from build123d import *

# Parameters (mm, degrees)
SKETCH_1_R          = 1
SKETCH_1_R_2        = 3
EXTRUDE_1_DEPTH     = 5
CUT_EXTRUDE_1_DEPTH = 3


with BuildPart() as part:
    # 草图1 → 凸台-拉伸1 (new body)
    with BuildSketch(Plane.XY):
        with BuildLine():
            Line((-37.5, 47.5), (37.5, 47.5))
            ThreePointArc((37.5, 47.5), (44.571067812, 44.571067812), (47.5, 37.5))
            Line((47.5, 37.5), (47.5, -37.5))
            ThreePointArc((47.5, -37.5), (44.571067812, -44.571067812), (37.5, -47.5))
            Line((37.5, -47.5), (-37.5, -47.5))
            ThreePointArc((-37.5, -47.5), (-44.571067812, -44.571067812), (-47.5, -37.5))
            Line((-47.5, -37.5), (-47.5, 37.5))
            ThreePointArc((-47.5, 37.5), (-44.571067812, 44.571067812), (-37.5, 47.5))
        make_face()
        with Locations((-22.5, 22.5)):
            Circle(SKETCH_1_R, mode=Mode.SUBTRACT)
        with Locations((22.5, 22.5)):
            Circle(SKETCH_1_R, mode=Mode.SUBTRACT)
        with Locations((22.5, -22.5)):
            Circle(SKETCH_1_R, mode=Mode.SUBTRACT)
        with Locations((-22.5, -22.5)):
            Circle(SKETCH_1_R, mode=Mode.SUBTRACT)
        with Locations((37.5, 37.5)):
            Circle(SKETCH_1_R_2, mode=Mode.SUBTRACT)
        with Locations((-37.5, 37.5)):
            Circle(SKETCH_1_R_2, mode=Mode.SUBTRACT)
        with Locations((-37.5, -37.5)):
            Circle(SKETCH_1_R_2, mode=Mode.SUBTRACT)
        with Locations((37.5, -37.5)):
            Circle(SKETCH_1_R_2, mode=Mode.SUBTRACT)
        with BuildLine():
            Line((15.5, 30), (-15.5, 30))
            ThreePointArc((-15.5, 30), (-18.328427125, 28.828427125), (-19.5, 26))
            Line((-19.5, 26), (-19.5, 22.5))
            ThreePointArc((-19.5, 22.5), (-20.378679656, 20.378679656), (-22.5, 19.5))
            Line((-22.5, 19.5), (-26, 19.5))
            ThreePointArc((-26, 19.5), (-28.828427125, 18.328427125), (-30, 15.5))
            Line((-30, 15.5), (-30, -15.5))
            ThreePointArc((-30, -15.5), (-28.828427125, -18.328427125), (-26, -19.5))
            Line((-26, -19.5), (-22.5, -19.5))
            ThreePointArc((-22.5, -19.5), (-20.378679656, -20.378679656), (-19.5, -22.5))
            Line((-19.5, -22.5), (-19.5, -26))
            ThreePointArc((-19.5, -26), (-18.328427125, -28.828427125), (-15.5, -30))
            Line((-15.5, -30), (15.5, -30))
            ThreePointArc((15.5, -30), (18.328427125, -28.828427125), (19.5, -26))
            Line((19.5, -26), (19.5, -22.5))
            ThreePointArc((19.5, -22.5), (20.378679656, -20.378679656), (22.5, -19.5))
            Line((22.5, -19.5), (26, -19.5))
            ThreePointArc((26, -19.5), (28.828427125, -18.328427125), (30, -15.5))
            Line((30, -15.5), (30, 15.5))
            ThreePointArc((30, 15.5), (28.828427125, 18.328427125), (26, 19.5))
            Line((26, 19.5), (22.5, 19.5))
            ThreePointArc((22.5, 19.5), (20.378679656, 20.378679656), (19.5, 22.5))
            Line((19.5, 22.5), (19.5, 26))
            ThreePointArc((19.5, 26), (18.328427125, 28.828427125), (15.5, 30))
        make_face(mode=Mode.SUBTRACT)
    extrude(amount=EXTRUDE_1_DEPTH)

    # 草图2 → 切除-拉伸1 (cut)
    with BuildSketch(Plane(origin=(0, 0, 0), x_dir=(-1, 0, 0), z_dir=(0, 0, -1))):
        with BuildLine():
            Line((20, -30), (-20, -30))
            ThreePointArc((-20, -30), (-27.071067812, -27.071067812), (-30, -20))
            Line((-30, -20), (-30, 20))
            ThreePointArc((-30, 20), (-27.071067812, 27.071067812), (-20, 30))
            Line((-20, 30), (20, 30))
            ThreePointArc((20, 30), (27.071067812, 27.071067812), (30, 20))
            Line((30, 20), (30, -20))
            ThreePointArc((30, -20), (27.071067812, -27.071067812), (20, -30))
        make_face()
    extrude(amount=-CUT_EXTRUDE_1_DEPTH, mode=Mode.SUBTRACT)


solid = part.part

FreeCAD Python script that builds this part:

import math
import FreeCAD as App
import Part
import Sketcher

doc = App.newDocument("Part")
body = doc.addObject("PartDesign::Body", "Body")

sketch1 = body.newObject("Sketcher::SketchObject", "Sketch")
sketch1.AttachmentSupport = (doc.getObject("XY_Plane"), [""])
sketch1.MapMode = "FlatFace"
sketch1.addGeometry(Part.LineSegment(App.Vector(37.5, 47.5, 0), App.Vector(-37.5, 47.5, 0)), False)
sketch1.addGeometry(Part.ArcOfCircle(Part.Circle(App.Vector(-37.5, 37.5, 0), App.Vector(0, 0, 1), 10), math.radians(90), math.radians(180)), False)
sketch1.addGeometry(Part.LineSegment(App.Vector(-47.5, 37.5, 0), App.Vector(-47.5, -37.5, 0)), False)
sketch1.addGeometry(Part.ArcOfCircle(Part.Circle(App.Vector(-37.5, -37.5, 0), App.Vector(0, 0, 1), 10), math.radians(180), math.radians(270)), False)
sketch1.addGeometry(Part.LineSegment(App.Vector(-37.5, -47.5, 0), App.Vector(37.5, -47.5, 0)), False)
sketch1.addGeometry(Part.ArcOfCircle(Part.Circle(App.Vector(37.5, -37.5, 0), App.Vector(0, 0, 1), 10), math.radians(-90), math.radians(0)), False)
sketch1.addGeometry(Part.LineSegment(App.Vector(47.5, -37.5, 0), App.Vector(47.5, 37.5, 0)), False)
sketch1.addGeometry(Part.ArcOfCircle(Part.Circle(App.Vector(37.5, 37.5, 0), App.Vector(0, 0, 1), 10), math.radians(0), math.radians(90)), False)
sketch1.addGeometry(Part.Circle(App.Vector(37.5, -37.5, 0), App.Vector(0, 0, 1), 3), False)
sketch1.addGeometry(Part.Circle(App.Vector(22.5, -22.5, 0), App.Vector(0, 0, 1), 1), False)
sketch1.addGeometry(Part.Circle(App.Vector(-37.5, -37.5, 0), App.Vector(0, 0, 1), 3), False)
sketch1.addGeometry(Part.Circle(App.Vector(-22.5, -22.5, 0), App.Vector(0, 0, 1), 1), False)
sketch1.addGeometry(Part.Circle(App.Vector(22.5, 22.5, 0), App.Vector(0, 0, 1), 1), False)
sketch1.addGeometry(Part.Circle(App.Vector(37.5, 37.5, 0), App.Vector(0, 0, 1), 3), False)
sketch1.addGeometry(Part.ArcOfCircle(Part.Circle(App.Vector(15.5, 26, 0), App.Vector(0, 0, 1), 4), math.radians(0), math.radians(90)), False)
sketch1.addGeometry(Part.LineSegment(App.Vector(19.5, 26, 0), App.Vector(19.5, 22.5, 0)), False)
sketch1.addGeometry(Part.ArcOfCircle(Part.Circle(App.Vector(22.5, 22.5, 0), App.Vector(0, 0, 1), 3), math.radians(180), math.radians(270)), False)
sketch1.addGeometry(Part.LineSegment(App.Vector(22.5, 19.5, 0), App.Vector(26, 19.5, 0)), False)
sketch1.addGeometry(Part.ArcOfCircle(Part.Circle(App.Vector(26, 15.5, 0), App.Vector(0, 0, 1), 4), math.radians(0), math.radians(90)), False)
sketch1.addGeometry(Part.LineSegment(App.Vector(30, 15.5, 0), App.Vector(30, -15.5, 0)), False)
sketch1.addGeometry(Part.ArcOfCircle(Part.Circle(App.Vector(26, -15.5, 0), App.Vector(0, 0, 1), 4), math.radians(-90), math.radians(0)), False)
sketch1.addGeometry(Part.LineSegment(App.Vector(26, -19.5, 0), App.Vector(22.5, -19.5, 0)), False)
sketch1.addGeometry(Part.ArcOfCircle(Part.Circle(App.Vector(22.5, -22.5, 0), App.Vector(0, 0, 1), 3), math.radians(90), math.radians(180)), False)
sketch1.addGeometry(Part.LineSegment(App.Vector(19.5, -22.5, 0), App.Vector(19.5, -26, 0)), False)
sketch1.addGeometry(Part.ArcOfCircle(Part.Circle(App.Vector(15.5, -26, 0), App.Vector(0, 0, 1), 4), math.radians(-90), math.radians(0)), False)
sketch1.addGeometry(Part.LineSegment(App.Vector(15.5, -30, 0), App.Vector(-15.5, -30, 0)), False)
sketch1.addGeometry(Part.ArcOfCircle(Part.Circle(App.Vector(-15.5, -26, 0), App.Vector(0, 0, 1), 4), math.radians(180), math.radians(270)), False)
sketch1.addGeometry(Part.LineSegment(App.Vector(-19.5, -26, 0), App.Vector(-19.5, -22.5, 0)), False)
sketch1.addGeometry(Part.ArcOfCircle(Part.Circle(App.Vector(-22.5, -22.5, 0), App.Vector(0, 0, 1), 3), math.radians(0), math.radians(90)), False)
sketch1.addGeometry(Part.LineSegment(App.Vector(-22.5, -19.5, 0), App.Vector(-26, -19.5, 0)), False)
sketch1.addGeometry(Part.ArcOfCircle(Part.Circle(App.Vector(-26, -15.5, 0), App.Vector(0, 0, 1), 4), math.radians(180), math.radians(270)), False)
sketch1.addGeometry(Part.LineSegment(App.Vector(-30, -15.5, 0), App.Vector(-30, 15.5, 0)), False)
sketch1.addGeometry(Part.ArcOfCircle(Part.Circle(App.Vector(-26, 15.5, 0), App.Vector(0, 0, 1), 4), math.radians(90), math.radians(180)), False)
sketch1.addGeometry(Part.LineSegment(App.Vector(-26, 19.5, 0), App.Vector(-22.5, 19.5, 0)), False)
sketch1.addGeometry(Part.ArcOfCircle(Part.Circle(App.Vector(-22.5, 22.5, 0), App.Vector(0, 0, 1), 3), math.radians(-90), math.radians(0)), False)
sketch1.addGeometry(Part.LineSegment(App.Vector(-19.5, 22.5, 0), App.Vector(-19.5, 26, 0)), False)
sketch1.addGeometry(Part.ArcOfCircle(Part.Circle(App.Vector(-15.5, 26, 0), App.Vector(0, 0, 1), 4), math.radians(90), math.radians(180)), False)
sketch1.addGeometry(Part.LineSegment(App.Vector(-15.5, 30, 0), App.Vector(15.5, 30, 0)), False)
sketch1.addGeometry(Part.Circle(App.Vector(-22.5, 22.5, 0), App.Vector(0, 0, 1), 1), False)
sketch1.addGeometry(Part.Circle(App.Vector(-37.5, 37.5, 0), App.Vector(0, 0, 1), 3), False)
sketch1.addConstraint(Sketcher.Constraint("Tangent", 0, 2, 1, 1))
sketch1.addConstraint(Sketcher.Constraint("Tangent", 1, 2, 2, 1))
sketch1.addConstraint(Sketcher.Constraint("Tangent", 2, 2, 3, 1))
sketch1.addConstraint(Sketcher.Constraint("Tangent", 3, 2, 4, 1))
sketch1.addConstraint(Sketcher.Constraint("Tangent", 4, 2, 5, 1))
sketch1.addConstraint(Sketcher.Constraint("Tangent", 5, 2, 6, 1))
sketch1.addConstraint(Sketcher.Constraint("Tangent", 6, 2, 7, 1))
sketch1.addConstraint(Sketcher.Constraint("Tangent", 7, 2, 0, 1))
sketch1.addConstraint(Sketcher.Constraint("Tangent", 14, 1, 15, 1))
sketch1.addConstraint(Sketcher.Constraint("Tangent", 15, 2, 16, 1))
sketch1.addConstraint(Sketcher.Constraint("Tangent", 16, 2, 17, 1))
sketch1.addConstraint(Sketcher.Constraint("Tangent", 17, 2, 18, 2))
sketch1.addConstraint(Sketcher.Constraint("Tangent", 18, 1, 19, 1))
sketch1.addConstraint(Sketcher.Constraint("Tangent", 19, 2, 20, 2))
sketch1.addConstraint(Sketcher.Constraint("Tangent", 20, 1, 21, 1))
sketch1.addConstraint(Sketcher.Constraint("Tangent", 21, 2, 22, 1))
sketch1.addConstraint(Sketcher.Constraint("Tangent", 22, 2, 23, 1))
sketch1.addConstraint(Sketcher.Constraint("Tangent", 23, 2, 24, 2))
sketch1.addConstraint(Sketcher.Constraint("Tangent", 24, 1, 25, 1))
sketch1.addConstraint(Sketcher.Constraint("Tangent", 25, 2, 26, 2))
sketch1.addConstraint(Sketcher.Constraint("Tangent", 26, 1, 27, 1))
sketch1.addConstraint(Sketcher.Constraint("Tangent", 27, 2, 28, 1))
sketch1.addConstraint(Sketcher.Constraint("Tangent", 28, 2, 29, 1))
sketch1.addConstraint(Sketcher.Constraint("Tangent", 29, 2, 30, 2))
sketch1.addConstraint(Sketcher.Constraint("Tangent", 30, 1, 31, 1))
sketch1.addConstraint(Sketcher.Constraint("Tangent", 31, 2, 32, 2))
sketch1.addConstraint(Sketcher.Constraint("Tangent", 32, 1, 33, 1))
sketch1.addConstraint(Sketcher.Constraint("Tangent", 33, 2, 34, 1))
sketch1.addConstraint(Sketcher.Constraint("Tangent", 34, 2, 35, 1))
sketch1.addConstraint(Sketcher.Constraint("Tangent", 35, 2, 36, 2))
sketch1.addConstraint(Sketcher.Constraint("Tangent", 36, 1, 37, 1))
sketch1.addConstraint(Sketcher.Constraint("Tangent", 37, 2, 14, 2))
sketch1.addConstraint(Sketcher.Constraint("Horizontal", 0))
sketch1.addConstraint(Sketcher.Constraint("Vertical", 2))
sketch1.addConstraint(Sketcher.Constraint("Horizontal", 4))
sketch1.addConstraint(Sketcher.Constraint("Vertical", 6))
sketch1.addConstraint(Sketcher.Constraint("Vertical", 15))
sketch1.addConstraint(Sketcher.Constraint("Horizontal", 17))
sketch1.addConstraint(Sketcher.Constraint("Vertical", 19))
sketch1.addConstraint(Sketcher.Constraint("Horizontal", 21))
sketch1.addConstraint(Sketcher.Constraint("Vertical", 23))
sketch1.addConstraint(Sketcher.Constraint("Horizontal", 25))
sketch1.addConstraint(Sketcher.Constraint("Vertical", 27))
sketch1.addConstraint(Sketcher.Constraint("Horizontal", 29))
sketch1.addConstraint(Sketcher.Constraint("Vertical", 31))
sketch1.addConstraint(Sketcher.Constraint("Horizontal", 33))
sketch1.addConstraint(Sketcher.Constraint("Vertical", 35))
sketch1.addConstraint(Sketcher.Constraint("Horizontal", 37))
sketch1.addConstraint(Sketcher.Constraint("Coincident", 8, 3, 5, 3))
sketch1.addConstraint(Sketcher.Constraint("Coincident", 10, 3, 3, 3))
sketch1.addConstraint(Sketcher.Constraint("Coincident", 13, 3, 7, 3))
sketch1.addConstraint(Sketcher.Constraint("Coincident", 16, 3, 12, 3))
sketch1.addConstraint(Sketcher.Constraint("Coincident", 22, 3, 9, 3))
sketch1.addConstraint(Sketcher.Constraint("Coincident", 28, 3, 11, 3))
sketch1.addConstraint(Sketcher.Constraint("Coincident", 38, 3, 34, 3))
sketch1.addConstraint(Sketcher.Constraint("Coincident", 39, 3, 1, 3))
sketch1.addConstraint(Sketcher.Constraint("Equal", 1, 3))
sketch1.addConstraint(Sketcher.Constraint("Equal", 3, 5))
sketch1.addConstraint(Sketcher.Constraint("Equal", 5, 7))
sketch1.addConstraint(Sketcher.Constraint("Equal", 8, 10))
sketch1.addConstraint(Sketcher.Constraint("Equal", 9, 11))
sketch1.addConstraint(Sketcher.Constraint("Equal", 11, 12))
sketch1.addConstraint(Sketcher.Constraint("Equal", 10, 13))
sketch1.addConstraint(Sketcher.Constraint("Equal", 13, 16))
sketch1.addConstraint(Sketcher.Constraint("Equal", 14, 18))
sketch1.addConstraint(Sketcher.Constraint("Equal", 18, 20))
sketch1.addConstraint(Sketcher.Constraint("Equal", 16, 22))
sketch1.addConstraint(Sketcher.Constraint("Equal", 20, 24))
sketch1.addConstraint(Sketcher.Constraint("Equal", 24, 26))
sketch1.addConstraint(Sketcher.Constraint("Equal", 22, 28))
sketch1.addConstraint(Sketcher.Constraint("Equal", 26, 30))
sketch1.addConstraint(Sketcher.Constraint("Equal", 30, 32))
sketch1.addConstraint(Sketcher.Constraint("Equal", 28, 34))
sketch1.addConstraint(Sketcher.Constraint("Equal", 32, 36))
sketch1.addConstraint(Sketcher.Constraint("Equal", 12, 38))
sketch1.addConstraint(Sketcher.Constraint("Equal", 34, 39))
sketch1.addConstraint(Sketcher.Constraint("Symmetric", 1, 3, 5, 3, -1, 1))
sketch1.addConstraint(Sketcher.Constraint("Symmetric", 11, 3, 12, 3, -1, 1))
sketch1.addConstraint(Sketcher.Constraint("Symmetric", 20, 3, 32, 3, -1, 1))
sketch1.addConstraint(Sketcher.Constraint("Symmetric", 24, 3, 36, 3, -1, 1))
sketch1.addConstraint(Sketcher.Constraint("Symmetric", 9, 3, 11, 3, -2))
sketch1.addConstraint(Sketcher.Constraint("Equal", 4, 2))
sketch1.addConstraint(Sketcher.Constraint("Equal", 33, 15))
sketch1.addConstraint(Sketcher.Constraint("Equal", 37, 19))
sketch1.addConstraint(Sketcher.Constraint("Diameter", 8, 6.0))
sketch1.addConstraint(Sketcher.Constraint("Diameter", 9, 2.0))
sketch1.addConstraint(Sketcher.Constraint("Radius", 1, 10.0))
sketch1.addConstraint(Sketcher.Constraint("Radius", 14, 4.0))
sketch1.addConstraint(Sketcher.Constraint("DistanceX", 0, 2, 0, 1, 75.0))
sketch1.addConstraint(Sketcher.Constraint("DistanceX", 25, 2, 25, 1, 31.0))
sketch1.addConstraint(Sketcher.Constraint("DistanceX", 17, 1, 17, 2, 3.5))
pad1 = body.newObject("PartDesign::Pad", "Pad")
pad1.Profile = sketch1
pad1.Length = 5

sketch2 = body.newObject("Sketcher::SketchObject", "Sketch001")
sketch2.AttachmentSupport = (doc.getObject("XY_Plane"), [""])
sketch2.MapMode = "FlatFace"
sketch2.addGeometry(Part.LineSegment(App.Vector(20, -30, 0), App.Vector(-20, -30, 0)), False)
sketch2.addGeometry(Part.ArcOfCircle(Part.Circle(App.Vector(-20, -20, 0), App.Vector(0, 0, 1), 10), math.radians(180), math.radians(270)), False)
sketch2.addGeometry(Part.LineSegment(App.Vector(-30, -20, 0), App.Vector(-30, 20, 0)), False)
sketch2.addGeometry(Part.ArcOfCircle(Part.Circle(App.Vector(-20, 20, 0), App.Vector(0, 0, 1), 10), math.radians(90), math.radians(180)), False)
sketch2.addGeometry(Part.LineSegment(App.Vector(-20, 30, 0), App.Vector(20, 30, 0)), False)
sketch2.addGeometry(Part.ArcOfCircle(Part.Circle(App.Vector(20, 20, 0), App.Vector(0, 0, 1), 10), math.radians(0), math.radians(90)), False)
sketch2.addGeometry(Part.LineSegment(App.Vector(30, 20, 0), App.Vector(30, -20, 0)), False)
sketch2.addGeometry(Part.ArcOfCircle(Part.Circle(App.Vector(20, -20, 0), App.Vector(0, 0, 1), 10), math.radians(-90), math.radians(0)), False)
sketch2.addConstraint(Sketcher.Constraint("Tangent", 0, 2, 1, 2))
sketch2.addConstraint(Sketcher.Constraint("Tangent", 1, 1, 2, 1))
sketch2.addConstraint(Sketcher.Constraint("Tangent", 2, 2, 3, 2))
sketch2.addConstraint(Sketcher.Constraint("Tangent", 3, 1, 4, 1))
sketch2.addConstraint(Sketcher.Constraint("Tangent", 4, 2, 5, 2))
sketch2.addConstraint(Sketcher.Constraint("Tangent", 5, 1, 6, 1))
sketch2.addConstraint(Sketcher.Constraint("Tangent", 6, 2, 7, 2))
sketch2.addConstraint(Sketcher.Constraint("Tangent", 7, 1, 0, 1))
sketch2.addConstraint(Sketcher.Constraint("Horizontal", 0))
sketch2.addConstraint(Sketcher.Constraint("Vertical", 2))
sketch2.addConstraint(Sketcher.Constraint("Horizontal", 4))
sketch2.addConstraint(Sketcher.Constraint("Vertical", 6))
sketch2.addConstraint(Sketcher.Constraint("Equal", 1, 3))
sketch2.addConstraint(Sketcher.Constraint("Equal", 3, 5))
sketch2.addConstraint(Sketcher.Constraint("Equal", 5, 7))
sketch2.addConstraint(Sketcher.Constraint("Symmetric", 1, 3, 5, 3, -1, 1))
sketch2.addConstraint(Sketcher.Constraint("Equal", 4, 2))
sketch2.addConstraint(Sketcher.Constraint("Radius", 1, 10.0))
sketch2.addConstraint(Sketcher.Constraint("DistanceX", 0, 2, 0, 1, 40.0))
pocket1 = body.newObject("PartDesign::Pocket", "Pocket")
pocket1.Profile = sketch2
pocket1.Length = 3
pocket1.Reversed = True

doc.recompute()
